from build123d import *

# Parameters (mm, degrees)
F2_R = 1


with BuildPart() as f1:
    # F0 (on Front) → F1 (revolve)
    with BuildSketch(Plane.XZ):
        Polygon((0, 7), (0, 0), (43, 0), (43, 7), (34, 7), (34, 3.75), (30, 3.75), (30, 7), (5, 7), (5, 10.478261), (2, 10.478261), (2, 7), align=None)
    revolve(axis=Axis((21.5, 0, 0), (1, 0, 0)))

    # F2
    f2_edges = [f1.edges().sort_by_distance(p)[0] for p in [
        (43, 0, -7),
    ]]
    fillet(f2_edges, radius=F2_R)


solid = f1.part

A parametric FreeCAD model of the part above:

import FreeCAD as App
import Part
import Sketcher


def edges_at(feature, points):
    """Names of the edges that pass closest to the given points."""
    edges = feature.Shape.Edges
    near = lambda p: min(range(len(edges)), key=lambda i: edges[i].distToShape(Part.Vertex(*p))[0])
    return sorted({f"Edge{near(p) + 1}" for p in points})


def add_polygon(sketch, points):
    """Adds a closed chain of lines whose ends are joined by coincident constraints."""
    first, n = sketch.GeometryCount, len(points)
    for a, b in zip(points, points[1:] + points[:1]):
        sketch.addGeometry(Part.LineSegment(App.Vector(*a, 0), App.Vector(*b, 0)), False)
    for i in range(n):
        sketch.addConstraint(Sketcher.Constraint("Coincident", first + i, 2, first + (i + 1) % n, 1))

doc = App.newDocument("Part")
body = doc.addObject("PartDesign::Body", "Body")

sketch1 = body.newObject("Sketcher::SketchObject", "Sketch")
sketch1.AttachmentSupport = (doc.getObject("XZ_Plane"), [""])
sketch1.MapMode = "FlatFace"
add_polygon(sketch1, [(0, 7), (0, 0), (43, 0), (43, 7), (34, 7), (34, 3.8), (30, 3.8), (30, 7), (5, 7), (5, 10.5), (2, 10.5), (2, 7)])
sketch1.addConstraint([
    Sketcher.Constraint("Vertical", 0),
    Sketcher.Constraint("Horizontal", 1),
    Sketcher.Constraint("Vertical", 2),
    Sketcher.Constraint("Horizontal", 3),
    Sketcher.Constraint("Vertical", 4),
    Sketcher.Constraint("Horizontal", 5),
    Sketcher.Constraint("Vertical", 6),
    Sketcher.Constraint("Horizontal", 7),
    Sketcher.Constraint("Vertical", 8),
    Sketcher.Constraint("Horizontal", 9),
    Sketcher.Constraint("Vertical", 10),
    Sketcher.Constraint("Horizontal", 11),
    Sketcher.Constraint("Coincident", 0, 2, -1, 1),
    Sketcher.Constraint("Horizontal", 3, 2, 6, 2),
    Sketcher.Constraint("Horizontal", 7, 2, 10, 2),
    Sketcher.Constraint("DistanceX", 1, 1, 1, 2, 43.0),
    Sketcher.Constraint("DistanceX", 3, 2, 3, 1, 9.0),
    Sketcher.Constraint("DistanceX", 5, 2, 5, 1, 4.0),
    Sketcher.Constraint("DistanceX", 7, 2, 7, 1, 25.0),
    Sketcher.Constraint("DistanceX", 9, 2, 9, 1, 3.0),
    Sketcher.Constraint("DistanceY", 0, 2, 0, 1, 7.0),
    Sketcher.Constraint("DistanceY", 4, 2, 4, 1, 3.25),
    Sketcher.Constraint("DistanceY", 8, 1, 8, 2, 3.478261),
])
revolution = body.newObject("PartDesign::Revolution", "Revolution")
revolution.Profile = sketch1
revolution.ReferenceAxis = (sketch1, ["H_Axis"])
revolution.Angle = 360
doc.recompute()

fillet = body.newObject("PartDesign::Fillet", "Fillet")
fillet.Base = (revolution, edges_at(revolution, [(43, 0, -7)]))
fillet.Radius = 1

doc.recompute()
